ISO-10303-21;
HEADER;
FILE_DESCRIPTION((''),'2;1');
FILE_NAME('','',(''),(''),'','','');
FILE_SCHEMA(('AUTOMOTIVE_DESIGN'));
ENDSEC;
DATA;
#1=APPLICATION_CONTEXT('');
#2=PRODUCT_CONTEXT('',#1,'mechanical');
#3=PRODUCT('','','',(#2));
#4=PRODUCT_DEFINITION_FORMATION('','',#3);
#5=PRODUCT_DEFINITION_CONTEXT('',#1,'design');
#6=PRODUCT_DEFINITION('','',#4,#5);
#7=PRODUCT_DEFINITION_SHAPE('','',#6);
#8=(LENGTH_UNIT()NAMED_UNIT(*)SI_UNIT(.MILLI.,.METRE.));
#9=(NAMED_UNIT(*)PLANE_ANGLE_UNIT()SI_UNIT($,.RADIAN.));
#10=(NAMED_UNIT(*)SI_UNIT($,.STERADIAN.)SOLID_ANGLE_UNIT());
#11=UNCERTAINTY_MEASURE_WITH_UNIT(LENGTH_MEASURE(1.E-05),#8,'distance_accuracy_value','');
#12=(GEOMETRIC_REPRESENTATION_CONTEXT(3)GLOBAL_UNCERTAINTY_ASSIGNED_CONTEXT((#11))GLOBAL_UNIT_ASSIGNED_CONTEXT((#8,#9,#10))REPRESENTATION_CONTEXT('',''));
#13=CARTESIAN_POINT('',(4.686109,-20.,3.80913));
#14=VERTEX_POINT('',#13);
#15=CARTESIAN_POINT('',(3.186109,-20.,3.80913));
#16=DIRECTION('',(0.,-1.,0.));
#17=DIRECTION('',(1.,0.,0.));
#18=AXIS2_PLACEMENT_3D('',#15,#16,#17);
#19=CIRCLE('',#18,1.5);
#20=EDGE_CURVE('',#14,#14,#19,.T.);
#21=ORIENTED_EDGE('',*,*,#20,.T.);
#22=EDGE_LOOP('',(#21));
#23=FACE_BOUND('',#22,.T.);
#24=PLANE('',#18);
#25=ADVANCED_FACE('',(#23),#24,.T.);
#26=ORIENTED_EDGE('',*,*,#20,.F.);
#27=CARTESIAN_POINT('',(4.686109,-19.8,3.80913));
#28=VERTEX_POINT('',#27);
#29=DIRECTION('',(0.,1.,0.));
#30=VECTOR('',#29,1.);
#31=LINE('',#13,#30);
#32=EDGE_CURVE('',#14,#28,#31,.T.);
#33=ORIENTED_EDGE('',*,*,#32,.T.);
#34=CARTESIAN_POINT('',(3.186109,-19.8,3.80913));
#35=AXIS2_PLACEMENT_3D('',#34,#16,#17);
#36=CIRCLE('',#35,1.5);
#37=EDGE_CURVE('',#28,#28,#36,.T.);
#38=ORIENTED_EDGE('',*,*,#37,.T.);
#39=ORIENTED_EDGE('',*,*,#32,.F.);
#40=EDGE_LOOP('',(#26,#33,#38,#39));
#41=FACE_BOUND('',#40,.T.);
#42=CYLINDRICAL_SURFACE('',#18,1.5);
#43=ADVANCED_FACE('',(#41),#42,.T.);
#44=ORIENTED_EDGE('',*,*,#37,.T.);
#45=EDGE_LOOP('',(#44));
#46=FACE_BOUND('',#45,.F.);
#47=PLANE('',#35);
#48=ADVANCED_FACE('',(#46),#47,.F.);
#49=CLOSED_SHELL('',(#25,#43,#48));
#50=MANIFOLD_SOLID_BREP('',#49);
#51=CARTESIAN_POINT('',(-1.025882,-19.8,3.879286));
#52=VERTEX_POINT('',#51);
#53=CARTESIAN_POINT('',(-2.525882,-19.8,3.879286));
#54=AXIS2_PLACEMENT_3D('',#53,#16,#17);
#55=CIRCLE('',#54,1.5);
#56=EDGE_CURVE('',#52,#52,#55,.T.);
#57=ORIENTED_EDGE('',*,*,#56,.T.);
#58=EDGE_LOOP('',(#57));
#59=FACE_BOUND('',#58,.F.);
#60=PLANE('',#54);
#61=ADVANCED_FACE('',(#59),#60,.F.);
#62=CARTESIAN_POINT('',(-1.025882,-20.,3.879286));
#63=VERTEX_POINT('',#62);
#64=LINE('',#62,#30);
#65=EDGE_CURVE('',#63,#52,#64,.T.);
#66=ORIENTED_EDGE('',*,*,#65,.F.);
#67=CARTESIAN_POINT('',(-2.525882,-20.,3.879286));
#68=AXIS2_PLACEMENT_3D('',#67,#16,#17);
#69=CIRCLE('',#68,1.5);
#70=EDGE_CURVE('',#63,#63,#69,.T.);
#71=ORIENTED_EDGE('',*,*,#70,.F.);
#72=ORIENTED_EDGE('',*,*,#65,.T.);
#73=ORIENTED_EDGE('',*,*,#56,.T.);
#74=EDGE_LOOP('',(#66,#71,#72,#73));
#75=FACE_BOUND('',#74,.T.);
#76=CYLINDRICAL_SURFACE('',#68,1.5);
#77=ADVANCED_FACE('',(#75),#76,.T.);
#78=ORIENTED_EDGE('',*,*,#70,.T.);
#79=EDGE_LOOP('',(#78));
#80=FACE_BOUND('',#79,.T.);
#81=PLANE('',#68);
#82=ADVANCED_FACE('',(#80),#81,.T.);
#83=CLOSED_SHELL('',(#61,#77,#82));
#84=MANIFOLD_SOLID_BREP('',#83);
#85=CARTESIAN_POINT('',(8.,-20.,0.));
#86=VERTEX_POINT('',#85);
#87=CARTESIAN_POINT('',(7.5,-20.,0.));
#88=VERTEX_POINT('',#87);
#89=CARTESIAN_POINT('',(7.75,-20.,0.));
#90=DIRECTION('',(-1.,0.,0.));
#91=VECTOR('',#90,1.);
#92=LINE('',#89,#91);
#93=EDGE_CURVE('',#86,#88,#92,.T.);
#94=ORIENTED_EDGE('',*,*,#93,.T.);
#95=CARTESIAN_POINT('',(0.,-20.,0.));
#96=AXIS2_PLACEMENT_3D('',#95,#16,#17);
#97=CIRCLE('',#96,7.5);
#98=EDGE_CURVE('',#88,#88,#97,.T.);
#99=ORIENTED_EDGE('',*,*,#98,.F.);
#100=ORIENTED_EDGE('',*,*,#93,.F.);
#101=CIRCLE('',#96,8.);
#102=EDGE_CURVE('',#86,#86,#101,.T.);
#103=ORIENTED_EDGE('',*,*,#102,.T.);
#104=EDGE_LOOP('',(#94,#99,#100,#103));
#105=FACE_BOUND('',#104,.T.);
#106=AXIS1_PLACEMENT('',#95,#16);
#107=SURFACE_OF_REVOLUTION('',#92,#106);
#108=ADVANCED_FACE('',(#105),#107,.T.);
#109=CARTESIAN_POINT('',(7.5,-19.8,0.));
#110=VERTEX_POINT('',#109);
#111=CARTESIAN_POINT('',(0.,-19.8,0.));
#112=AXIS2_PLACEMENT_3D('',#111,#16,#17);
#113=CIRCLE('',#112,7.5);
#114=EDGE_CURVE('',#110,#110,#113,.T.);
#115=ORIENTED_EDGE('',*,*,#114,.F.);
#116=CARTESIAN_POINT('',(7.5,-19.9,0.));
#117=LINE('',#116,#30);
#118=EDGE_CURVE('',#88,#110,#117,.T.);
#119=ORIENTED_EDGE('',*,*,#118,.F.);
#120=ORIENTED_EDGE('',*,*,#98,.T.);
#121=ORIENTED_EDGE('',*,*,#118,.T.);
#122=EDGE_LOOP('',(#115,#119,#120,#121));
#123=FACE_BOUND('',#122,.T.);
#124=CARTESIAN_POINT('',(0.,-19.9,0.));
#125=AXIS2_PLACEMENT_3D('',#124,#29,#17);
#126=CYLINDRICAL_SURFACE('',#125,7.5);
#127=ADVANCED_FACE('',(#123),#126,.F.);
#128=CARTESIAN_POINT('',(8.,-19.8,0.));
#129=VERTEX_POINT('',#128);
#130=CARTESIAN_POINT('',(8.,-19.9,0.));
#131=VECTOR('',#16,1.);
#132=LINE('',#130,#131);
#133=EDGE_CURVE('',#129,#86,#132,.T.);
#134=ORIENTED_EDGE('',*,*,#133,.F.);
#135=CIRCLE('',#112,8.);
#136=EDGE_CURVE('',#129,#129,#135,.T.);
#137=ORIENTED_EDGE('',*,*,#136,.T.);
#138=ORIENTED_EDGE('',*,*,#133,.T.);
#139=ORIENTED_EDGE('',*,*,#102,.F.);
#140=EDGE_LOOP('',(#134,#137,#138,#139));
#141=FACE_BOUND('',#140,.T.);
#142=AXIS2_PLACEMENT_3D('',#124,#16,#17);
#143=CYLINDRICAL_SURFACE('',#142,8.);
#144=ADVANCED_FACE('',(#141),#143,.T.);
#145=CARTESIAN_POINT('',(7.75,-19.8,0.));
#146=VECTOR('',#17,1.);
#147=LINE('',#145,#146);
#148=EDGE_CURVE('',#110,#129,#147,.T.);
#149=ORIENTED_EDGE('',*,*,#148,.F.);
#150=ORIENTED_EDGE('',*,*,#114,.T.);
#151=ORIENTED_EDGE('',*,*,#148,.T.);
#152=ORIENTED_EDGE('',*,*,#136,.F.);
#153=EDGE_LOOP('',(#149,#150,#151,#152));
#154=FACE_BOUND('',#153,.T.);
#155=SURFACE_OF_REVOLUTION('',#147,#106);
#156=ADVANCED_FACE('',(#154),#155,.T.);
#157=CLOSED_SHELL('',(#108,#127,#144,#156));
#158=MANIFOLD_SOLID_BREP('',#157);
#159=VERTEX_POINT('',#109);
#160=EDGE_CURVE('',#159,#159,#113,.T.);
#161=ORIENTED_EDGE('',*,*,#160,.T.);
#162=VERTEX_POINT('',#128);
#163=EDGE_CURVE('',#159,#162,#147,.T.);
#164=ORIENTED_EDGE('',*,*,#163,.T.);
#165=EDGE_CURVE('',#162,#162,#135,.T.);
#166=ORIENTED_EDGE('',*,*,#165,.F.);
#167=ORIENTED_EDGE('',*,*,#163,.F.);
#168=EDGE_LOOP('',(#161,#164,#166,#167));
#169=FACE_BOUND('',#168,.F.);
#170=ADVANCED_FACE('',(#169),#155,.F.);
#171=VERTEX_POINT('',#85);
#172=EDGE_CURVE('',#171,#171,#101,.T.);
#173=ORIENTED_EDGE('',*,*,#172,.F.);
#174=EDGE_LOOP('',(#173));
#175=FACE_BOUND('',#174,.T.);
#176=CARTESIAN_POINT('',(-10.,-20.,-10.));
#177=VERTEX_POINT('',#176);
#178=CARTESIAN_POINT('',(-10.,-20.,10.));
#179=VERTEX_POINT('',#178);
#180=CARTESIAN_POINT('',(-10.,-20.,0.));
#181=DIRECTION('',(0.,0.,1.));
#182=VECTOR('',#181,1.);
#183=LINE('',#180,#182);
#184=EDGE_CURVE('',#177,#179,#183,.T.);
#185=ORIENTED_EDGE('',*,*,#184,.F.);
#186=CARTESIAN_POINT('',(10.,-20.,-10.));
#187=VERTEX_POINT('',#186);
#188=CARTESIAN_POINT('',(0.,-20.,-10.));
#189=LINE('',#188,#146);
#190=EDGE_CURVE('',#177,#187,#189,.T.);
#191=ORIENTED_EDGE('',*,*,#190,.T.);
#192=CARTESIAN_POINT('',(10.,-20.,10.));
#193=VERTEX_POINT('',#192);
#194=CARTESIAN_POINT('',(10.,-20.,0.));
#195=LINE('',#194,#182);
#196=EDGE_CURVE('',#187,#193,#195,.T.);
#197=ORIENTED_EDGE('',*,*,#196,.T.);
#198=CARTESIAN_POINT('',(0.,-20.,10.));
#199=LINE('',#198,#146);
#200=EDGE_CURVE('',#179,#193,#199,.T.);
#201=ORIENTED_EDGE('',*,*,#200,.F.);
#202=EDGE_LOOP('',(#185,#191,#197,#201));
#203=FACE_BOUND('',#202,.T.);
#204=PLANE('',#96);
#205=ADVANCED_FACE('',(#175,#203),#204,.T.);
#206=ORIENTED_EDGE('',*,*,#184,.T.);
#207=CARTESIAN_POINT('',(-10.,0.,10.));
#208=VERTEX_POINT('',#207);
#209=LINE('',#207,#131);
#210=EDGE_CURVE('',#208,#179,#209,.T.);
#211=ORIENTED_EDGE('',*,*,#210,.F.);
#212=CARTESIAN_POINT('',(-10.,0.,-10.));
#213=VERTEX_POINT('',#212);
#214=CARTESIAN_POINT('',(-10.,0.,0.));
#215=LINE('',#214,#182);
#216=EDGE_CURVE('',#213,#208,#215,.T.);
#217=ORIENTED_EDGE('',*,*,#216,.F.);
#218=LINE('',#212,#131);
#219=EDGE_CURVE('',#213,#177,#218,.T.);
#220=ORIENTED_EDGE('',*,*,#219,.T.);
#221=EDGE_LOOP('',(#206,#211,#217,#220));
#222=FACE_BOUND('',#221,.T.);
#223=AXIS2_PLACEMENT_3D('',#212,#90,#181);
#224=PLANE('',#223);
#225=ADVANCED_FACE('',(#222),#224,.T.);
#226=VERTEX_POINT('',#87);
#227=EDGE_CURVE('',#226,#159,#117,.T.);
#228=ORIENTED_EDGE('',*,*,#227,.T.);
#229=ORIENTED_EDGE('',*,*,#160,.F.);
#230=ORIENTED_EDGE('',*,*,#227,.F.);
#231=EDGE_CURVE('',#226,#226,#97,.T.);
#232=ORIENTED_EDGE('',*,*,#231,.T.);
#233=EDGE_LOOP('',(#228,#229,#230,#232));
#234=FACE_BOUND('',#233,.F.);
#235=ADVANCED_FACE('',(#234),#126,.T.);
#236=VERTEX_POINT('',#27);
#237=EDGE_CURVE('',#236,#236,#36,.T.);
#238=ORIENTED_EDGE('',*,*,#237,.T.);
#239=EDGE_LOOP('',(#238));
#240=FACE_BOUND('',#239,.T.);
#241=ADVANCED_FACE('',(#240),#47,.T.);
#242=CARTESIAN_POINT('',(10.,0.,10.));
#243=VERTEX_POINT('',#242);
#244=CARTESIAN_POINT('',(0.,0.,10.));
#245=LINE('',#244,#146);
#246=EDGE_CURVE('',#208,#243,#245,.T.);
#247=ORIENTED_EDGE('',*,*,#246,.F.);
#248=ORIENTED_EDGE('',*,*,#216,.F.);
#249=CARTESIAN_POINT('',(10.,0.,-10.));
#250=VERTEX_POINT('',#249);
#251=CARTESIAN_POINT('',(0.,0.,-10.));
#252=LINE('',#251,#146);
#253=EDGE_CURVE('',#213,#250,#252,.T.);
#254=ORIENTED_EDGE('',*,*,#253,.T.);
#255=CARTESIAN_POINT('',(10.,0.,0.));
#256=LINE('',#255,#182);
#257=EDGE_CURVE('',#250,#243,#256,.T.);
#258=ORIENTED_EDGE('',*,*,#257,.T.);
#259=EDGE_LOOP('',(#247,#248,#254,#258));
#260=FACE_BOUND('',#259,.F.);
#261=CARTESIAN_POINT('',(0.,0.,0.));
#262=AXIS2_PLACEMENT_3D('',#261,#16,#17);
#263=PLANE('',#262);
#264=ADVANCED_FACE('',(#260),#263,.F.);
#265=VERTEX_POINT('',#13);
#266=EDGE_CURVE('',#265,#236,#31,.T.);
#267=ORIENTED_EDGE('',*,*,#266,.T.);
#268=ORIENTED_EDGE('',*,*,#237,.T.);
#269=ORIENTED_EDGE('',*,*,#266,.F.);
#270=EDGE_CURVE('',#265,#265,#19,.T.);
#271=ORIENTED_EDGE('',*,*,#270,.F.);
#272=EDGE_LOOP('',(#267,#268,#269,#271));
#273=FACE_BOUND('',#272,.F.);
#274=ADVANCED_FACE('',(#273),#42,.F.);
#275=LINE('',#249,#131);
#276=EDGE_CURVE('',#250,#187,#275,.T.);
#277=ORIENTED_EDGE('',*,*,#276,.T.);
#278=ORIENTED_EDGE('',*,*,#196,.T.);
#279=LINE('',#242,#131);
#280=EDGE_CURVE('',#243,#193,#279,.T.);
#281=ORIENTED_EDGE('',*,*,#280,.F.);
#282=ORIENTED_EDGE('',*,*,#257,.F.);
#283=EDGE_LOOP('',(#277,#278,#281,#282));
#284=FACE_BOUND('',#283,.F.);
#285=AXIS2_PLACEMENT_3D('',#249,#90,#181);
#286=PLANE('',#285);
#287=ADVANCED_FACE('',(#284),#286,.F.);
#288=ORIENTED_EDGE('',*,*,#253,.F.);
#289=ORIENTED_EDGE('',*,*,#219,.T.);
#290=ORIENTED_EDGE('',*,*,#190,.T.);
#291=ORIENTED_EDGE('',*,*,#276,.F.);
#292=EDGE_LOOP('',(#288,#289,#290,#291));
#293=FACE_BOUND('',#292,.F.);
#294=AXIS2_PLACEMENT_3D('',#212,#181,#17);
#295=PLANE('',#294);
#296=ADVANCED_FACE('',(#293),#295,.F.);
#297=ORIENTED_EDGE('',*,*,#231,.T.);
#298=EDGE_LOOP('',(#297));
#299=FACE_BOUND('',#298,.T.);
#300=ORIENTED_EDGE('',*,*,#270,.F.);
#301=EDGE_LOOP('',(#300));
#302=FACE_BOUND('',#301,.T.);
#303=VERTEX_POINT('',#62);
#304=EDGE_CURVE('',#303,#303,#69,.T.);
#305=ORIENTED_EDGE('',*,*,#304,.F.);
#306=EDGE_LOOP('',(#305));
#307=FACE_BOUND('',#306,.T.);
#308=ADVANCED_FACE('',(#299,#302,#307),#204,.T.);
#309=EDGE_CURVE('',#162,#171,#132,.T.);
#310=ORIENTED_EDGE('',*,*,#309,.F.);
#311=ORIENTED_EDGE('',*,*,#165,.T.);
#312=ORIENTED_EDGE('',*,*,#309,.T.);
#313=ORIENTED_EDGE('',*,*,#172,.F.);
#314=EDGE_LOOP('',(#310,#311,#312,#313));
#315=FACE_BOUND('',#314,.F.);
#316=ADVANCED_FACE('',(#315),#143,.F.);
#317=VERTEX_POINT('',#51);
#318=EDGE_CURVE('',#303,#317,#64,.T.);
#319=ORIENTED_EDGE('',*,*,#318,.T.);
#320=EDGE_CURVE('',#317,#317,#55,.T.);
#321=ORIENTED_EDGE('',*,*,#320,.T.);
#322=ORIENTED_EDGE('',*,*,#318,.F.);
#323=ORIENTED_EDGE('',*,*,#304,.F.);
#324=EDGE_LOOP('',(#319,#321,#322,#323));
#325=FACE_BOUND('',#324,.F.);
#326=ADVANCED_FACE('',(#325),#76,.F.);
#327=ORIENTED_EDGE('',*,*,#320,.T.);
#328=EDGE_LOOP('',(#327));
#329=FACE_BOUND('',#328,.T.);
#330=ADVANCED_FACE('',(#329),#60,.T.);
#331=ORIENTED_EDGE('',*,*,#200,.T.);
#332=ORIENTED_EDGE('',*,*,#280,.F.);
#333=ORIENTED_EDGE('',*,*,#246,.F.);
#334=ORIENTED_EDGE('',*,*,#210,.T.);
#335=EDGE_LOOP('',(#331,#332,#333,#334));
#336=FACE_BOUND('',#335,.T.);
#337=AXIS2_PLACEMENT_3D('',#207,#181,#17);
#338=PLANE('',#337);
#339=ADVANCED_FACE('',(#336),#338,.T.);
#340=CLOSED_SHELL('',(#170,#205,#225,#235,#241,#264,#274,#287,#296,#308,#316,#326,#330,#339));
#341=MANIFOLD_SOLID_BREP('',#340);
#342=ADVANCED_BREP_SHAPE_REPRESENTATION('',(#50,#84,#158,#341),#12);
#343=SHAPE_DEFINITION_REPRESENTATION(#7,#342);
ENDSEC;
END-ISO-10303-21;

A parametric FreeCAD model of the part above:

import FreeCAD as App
import Part
import Sketcher

V = App.Vector
Q = App.Units.Quantity

doc = App.newDocument("Part")
body = doc.addObject("PartDesign::Body", "Body")

sketch1 = body.newObject("Sketcher::SketchObject", "Sketch")
sketch1.AttachmentSupport = (doc.getObject("XZ_Plane"), [""])
sketch1.MapMode = "FlatFace"
sketch1.addGeometry([
    Part.LineSegment(V(-10, 10, 0), V(-10, -10, 0)),
    Part.LineSegment(V(-10, -10, 0), V(10, -10, 0)),
    Part.LineSegment(V(10, -10, 0), V(10, 10, 0)),
    Part.LineSegment(V(10, 10, 0), V(-10, 10, 0)),
], False)
sketch1.addConstraint([
    Sketcher.Constraint("Coincident", 0, 2, 1, 1),
    Sketcher.Constraint("Coincident", 1, 2, 2, 1),
    Sketcher.Constraint("Coincident", 2, 2, 3, 1),
    Sketcher.Constraint("Coincident", 3, 2, 0, 1),
    Sketcher.Constraint("Vertical", 0),
    Sketcher.Constraint("Horizontal", 1),
    Sketcher.Constraint("Vertical", 2),
    Sketcher.Constraint("Horizontal", 3),
    Sketcher.Constraint("Symmetric", 0, 2, 2, 2, -1, 1),
    Sketcher.Constraint("Equal", 3, 0),
    Sketcher.Constraint("DistanceX", 1, 1, 1, 2, Q("20 mm")),
])
pad1 = body.newObject("PartDesign::Pad", "Pad")
pad1.Profile = sketch1
pad1.Length = 20

sketch2 = body.newObject("Sketcher::SketchObject", "Sketch001")
sketch2.AttachmentSupport = (doc.getObject("XY_Plane"), [""])
sketch2.MapMode = "FlatFace"
sketch2.addGeometry([
    Part.LineSegment(V(7.5, -20, 0), V(7.5, -19.8, 0)),
    Part.LineSegment(V(7.5, -19.8, 0), V(8, -19.8, 0)),
    Part.LineSegment(V(8, -19.8, 0), V(8, -20, 0)),
    Part.LineSegment(V(8, -20, 0), V(7.5, -20, 0)),
], False)
sketch2.addConstraint([
    Sketcher.Constraint("Coincident", 0, 2, 1, 1),
    Sketcher.Constraint("Coincident", 1, 2, 2, 1),
    Sketcher.Constraint("Coincident", 2, 2, 3, 1),
    Sketcher.Constraint("Coincident", 3, 2, 0, 1),
    Sketcher.Constraint("Vertical", 0),
    Sketcher.Constraint("Horizontal", 1),
    Sketcher.Constraint("Vertical", 2),
    Sketcher.Constraint("Horizontal", 3),
    Sketcher.Constraint("DistanceX", 1, 1, 1, 2, Q("0.5 mm")),
    Sketcher.Constraint("DistanceY", 0, 1, 0, 2, Q("0.2 mm")),
    Sketcher.Constraint("DistanceX", -1, 1, 1, 2, Q("8 mm")),
    Sketcher.Constraint("DistanceY", 2, 2, -1, 1, Q("20 mm")),
])

sketch3 = body.newObject("Sketcher::SketchObject", "Sketch002")
sketch3.AttachmentSupport = (doc.getObject("XZ_Plane"), [""])
sketch3.MapMode = "FlatFace"
sketch3.AttachmentOffset = App.Placement(V(0, 0, 20), App.Rotation())
sketch3.addGeometry(Part.Circle(V(0, 0, 0), V(0, 0, 1), 8), False)
sketch3.addConstraint([
    Sketcher.Constraint("Coincident", 0, 3, -1, 1),
    Sketcher.Constraint("Diameter", 0, Q("16 mm")),
])
doc.recompute()

subtractivepipe = body.newObject("PartDesign::SubtractivePipe", "SubtractivePipe")
subtractivepipe.Profile = sketch2
subtractivepipe.Spine = (sketch3, ["Edge1"])

sketch4 = body.newObject("Sketcher::SketchObject", "Sketch003")
sketch4.AttachmentSupport = (doc.getObject("XZ_Plane"), [""])
sketch4.MapMode = "FlatFace"
sketch4.AttachmentOffset = App.Placement(V(0, 0, 20), App.Rotation())
sketch4.addGeometry([
    Part.Circle(V(3.186109, 3.80913, 0), V(0, 0, 1), 1.5),
    Part.Circle(V(-2.525882, 3.879286, 0), V(0, 0, 1), 1.5),
], False)
sketch4.addConstraint([
    Sketcher.Constraint("Equal", 0, 1),
    Sketcher.Constraint("Diameter", 0, Q("3 mm")),
    Sketcher.Constraint("DistanceX", -1, 1, 0, 3, Q("3.186109 mm")),
    Sketcher.Constraint("DistanceY", -1, 1, 0, 3, Q("3.80913 mm")),
    Sketcher.Constraint("DistanceX", 1, 3, -1, 1, Q("2.525882 mm")),
    Sketcher.Constraint("DistanceY", -1, 1, 1, 3, Q("3.879286 mm")),
])
pocket1 = body.newObject("PartDesign::Pocket", "Pocket")
pocket1.Profile = sketch4
pocket1.Length = 0.2
body2 = doc.addObject("PartDesign::Body", "Body001")

sketch5 = body2.newObject("Sketcher::SketchObject", "Sketch004")
sketch5.AttachmentSupport = (doc.getObject("XY_Plane001"), [""])
sketch5.MapMode = "FlatFace"
sketch5.addGeometry([
    Part.LineSegment(V(7.5, -20, 0), V(7.5, -19.8, 0)),
    Part.LineSegment(V(7.5, -19.8, 0), V(8, -19.8, 0)),
    Part.LineSegment(V(8, -19.8, 0), V(8, -20, 0)),
    Part.LineSegment(V(8, -20, 0), V(7.5, -20, 0)),
], False)
sketch5.addConstraint([
    Sketcher.Constraint("Coincident", 0, 2, 1, 1),
    Sketcher.Constraint("Coincident", 1, 2, 2, 1),
    Sketcher.Constraint("Coincident", 2, 2, 3, 1),
    Sketcher.Constraint("Coincident", 3, 2, 0, 1),
    Sketcher.Constraint("Vertical", 0),
    Sketcher.Constraint("Horizontal", 1),
    Sketcher.Constraint("Vertical", 2),
    Sketcher.Constraint("Horizontal", 3),
    Sketcher.Constraint("DistanceX", 1, 1, 1, 2, Q("0.5 mm")),
    Sketcher.Constraint("DistanceY", 0, 1, 0, 2, Q("0.2 mm")),
    Sketcher.Constraint("DistanceX", -1, 1, 1, 2, Q("8 mm")),
    Sketcher.Constraint("DistanceY", 2, 2, -1, 1, Q("20 mm")),
])

sketch6 = body2.newObject("Sketcher::SketchObject", "Sketch005")
sketch6.AttachmentSupport = (doc.getObject("XZ_Plane001"), [""])
sketch6.MapMode = "FlatFace"
sketch6.AttachmentOffset = App.Placement(V(0, 0, 20), App.Rotation())
sketch6.addGeometry(Part.Circle(V(0, 0, 0), V(0, 0, 1), 8), False)
sketch6.addConstraint([
    Sketcher.Constraint("Coincident", 0, 3, -1, 1),
    Sketcher.Constraint("Diameter", 0, Q("16 mm")),
])
doc.recompute()

additivepipe = body2.newObject("PartDesign::AdditivePipe", "AdditivePipe")
additivepipe.Profile = sketch5
additivepipe.Spine = (sketch6, ["Edge1"])
body3 = doc.addObject("PartDesign::Body", "Body002")

sketch7 = body3.newObject("Sketcher::SketchObject", "Sketch006")
sketch7.AttachmentSupport = (doc.getObject("XZ_Plane002"), [""])
sketch7.MapMode = "FlatFace"
sketch7.AttachmentOffset = App.Placement(V(0, 0, 20), App.Rotation())
sketch7.addGeometry(Part.Circle(V(-2.525882, 3.879286, 0), V(0, 0, 1), 1.5), False)
sketch7.addConstraint([
    Sketcher.Constraint("Diameter", 0, Q("3 mm")),
    Sketcher.Constraint("DistanceX", 0, 3, -1, 1, Q("2.525882 mm")),
    Sketcher.Constraint("DistanceY", -1, 1, 0, 3, Q("3.879286 mm")),
])
pad2 = body3.newObject("PartDesign::Pad", "Pad001")
pad2.Profile = sketch7
pad2.Length = 0.2
pad2.Reversed = True
body4 = doc.addObject("PartDesign::Body", "Body003")

sketch8 = body4.newObject("Sketcher::SketchObject", "Sketch007")
sketch8.AttachmentSupport = (doc.getObject("XZ_Plane003"), [""])
sketch8.MapMode = "FlatFace"
sketch8.AttachmentOffset = App.Placement(V(0, 0, 20), App.Rotation())
sketch8.addGeometry(Part.Circle(V(3.186109, 3.80913, 0), V(0, 0, 1), 1.5), False)
sketch8.addConstraint([
    Sketcher.Constraint("Diameter", 0, Q("3 mm")),
    Sketcher.Constraint("DistanceX", -1, 1, 0, 3, Q("3.186109 mm")),
    Sketcher.Constraint("DistanceY", -1, 1, 0, 3, Q("3.80913 mm")),
])
pad3 = body4.newObject("PartDesign::Pad", "Pad002")
pad3.Profile = sketch8
pad3.Length = 0.2
pad3.Reversed = True

doc.recompute()
